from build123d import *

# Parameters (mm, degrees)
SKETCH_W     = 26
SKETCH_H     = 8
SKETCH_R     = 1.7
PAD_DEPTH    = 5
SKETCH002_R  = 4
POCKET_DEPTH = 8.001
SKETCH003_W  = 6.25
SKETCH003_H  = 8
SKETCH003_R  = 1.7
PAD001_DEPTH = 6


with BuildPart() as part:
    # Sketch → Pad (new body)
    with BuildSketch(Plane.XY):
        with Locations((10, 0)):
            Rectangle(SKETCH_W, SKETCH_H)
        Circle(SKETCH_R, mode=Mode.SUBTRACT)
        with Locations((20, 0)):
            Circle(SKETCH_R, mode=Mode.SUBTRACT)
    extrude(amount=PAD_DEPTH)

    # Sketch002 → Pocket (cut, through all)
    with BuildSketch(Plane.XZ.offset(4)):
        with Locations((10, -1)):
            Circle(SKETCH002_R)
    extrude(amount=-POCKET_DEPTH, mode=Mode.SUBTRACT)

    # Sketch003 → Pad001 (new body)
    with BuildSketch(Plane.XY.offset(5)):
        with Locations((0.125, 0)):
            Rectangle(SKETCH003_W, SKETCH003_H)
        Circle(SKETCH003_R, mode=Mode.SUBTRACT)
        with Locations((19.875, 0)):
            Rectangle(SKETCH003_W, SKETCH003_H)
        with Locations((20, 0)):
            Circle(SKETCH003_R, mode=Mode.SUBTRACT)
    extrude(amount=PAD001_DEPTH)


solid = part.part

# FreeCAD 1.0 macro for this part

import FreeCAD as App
import Part
import Sketcher
from FreeCAD import Vector
Q = App.Units.Quantity

doc = App.newDocument("Part")
body = doc.addObject("PartDesign::Body", "Body")

# Sketch on XY plane
sketch1 = body.newObject("Sketcher::SketchObject", "Sketch")
sketch1.AttachmentSupport = (doc.getObject("XY_Plane"), [""])
sketch1.MapMode = "FlatFace"
sketch1.addGeometry([
    Part.LineSegment(Vector(-3, 4, 0), Vector(-3, -4, 0)),  # 0
    Part.LineSegment(Vector(-3, -4, 0), Vector(23, -4, 0)),  # 1
    Part.LineSegment(Vector(23, -4, 0), Vector(23, 4, 0)),  # 2
    Part.LineSegment(Vector(23, 4, 0), Vector(-3, 4, 0)),  # 3
    Part.Circle(Vector(0, 0, 0), Vector(0, 0, 1), 1.7),  # 4
    Part.Circle(Vector(20, 0, 0), Vector(0, 0, 1), 1.7),  # 5
], False)
sketch1.addConstraint([
    Sketcher.Constraint("Coincident", 0, 2, 1, 1),
    Sketcher.Constraint("Coincident", 1, 2, 2, 1),
    Sketcher.Constraint("Coincident", 2, 2, 3, 1),
    Sketcher.Constraint("Coincident", 3, 2, 0, 1),
    Sketcher.Constraint("Vertical", 0),
    Sketcher.Constraint("Horizontal", 1),
    Sketcher.Constraint("Vertical", 2),
    Sketcher.Constraint("Horizontal", 3),
    Sketcher.Constraint("Coincident", 4, 3, -1, 1),
    Sketcher.Constraint("Equal", 4, 5),
    Sketcher.Constraint("PointOnObject", 5, 3, -1),
    Sketcher.Constraint("Diameter", 4, Q("3.4 mm")),
    Sketcher.Constraint("DistanceX", 1, 1, 1, 2, Q("26 mm")),
    Sketcher.Constraint("DistanceY", 0, 2, 0, 1, Q("8 mm")),
    Sketcher.Constraint("DistanceX", -1, 1, 5, 3, Q("20 mm")),
    Sketcher.Constraint("DistanceX", 0, 2, -1, 1, Q("3 mm")),
    Sketcher.Constraint("DistanceY", 0, 2, -1, 1, Q("4 mm")),
])
pad1 = body.newObject("PartDesign::Pad", "Pad")
pad1.Profile = sketch1
pad1.Length = 5

# Sketch on XZ plane
sketch2 = body.newObject("Sketcher::SketchObject", "Sketch001")
sketch2.AttachmentSupport = (doc.getObject("XZ_Plane"), [""])
sketch2.MapMode = "FlatFace"
sketch2.AttachmentOffset = App.Placement(Vector(0, 0, 4), App.Rotation())
sketch2.addGeometry(Part.Circle(Vector(10, -1, 0), Vector(0, 0, 1), 4), False)
sketch2.addConstraint([
    Sketcher.Constraint("Diameter", 0, Q("8 mm")),
    Sketcher.Constraint("DistanceX", -1, 1, 0, 3, Q("10 mm")),
    Sketcher.Constraint("DistanceY", 0, 3, -1, 1, Q("1 mm")),
])
pocket1 = body.newObject("PartDesign::Pocket", "Pocket")
pocket1.Profile = sketch2
pocket1.Type = "ThroughAll"

# Sketch on XY plane
sketch3 = body.newObject("Sketcher::SketchObject", "Sketch002")
sketch3.AttachmentSupport = (doc.getObject("XY_Plane"), [""])
sketch3.MapMode = "FlatFace"
sketch3.AttachmentOffset = App.Placement(Vector(0, 0, 5), App.Rotation())
sketch3.addGeometry([
    Part.LineSegment(Vector(-3, 4, 0), Vector(-3, -4, 0)),  # 0
    Part.LineSegment(Vector(-3, -4, 0), Vector(3.2, -4, 0)),  # 1
    Part.LineSegment(Vector(3.2, -4, 0), Vector(3.2, 4, 0)),  # 2
    Part.LineSegment(Vector(3.2, 4, 0), Vector(-3, 4, 0)),  # 3
    Part.Circle(Vector(0, 0, 0), Vector(0, 0, 1), 1.7),  # 4
    Part.LineSegment(Vector(16.8, 4, 0), Vector(16.8, -4, 0)),  # 5
    Part.LineSegment(Vector(16.8, -4, 0), Vector(23, -4, 0)),  # 6
    Part.LineSegment(Vector(23, -4, 0), Vector(23, 4, 0)),  # 7
    Part.LineSegment(Vector(23, 4, 0), Vector(16.8, 4, 0)),  # 8
    Part.Circle(Vector(20, 0, 0), Vector(0, 0, 1), 1.7),  # 9
], False)
sketch3.addConstraint([
    Sketcher.Constraint("Coincident", 0, 2, 1, 1),
    Sketcher.Constraint("Coincident", 1, 2, 2, 1),
    Sketcher.Constraint("Coincident", 2, 2, 3, 1),
    Sketcher.Constraint("Coincident", 3, 2, 0, 1),
    Sketcher.Constraint("Coincident", 5, 2, 6, 1),
    Sketcher.Constraint("Coincident", 6, 2, 7, 1),
    Sketcher.Constraint("Coincident", 7, 2, 8, 1),
    Sketcher.Constraint("Coincident", 8, 2, 5, 1),
    Sketcher.Constraint("Vertical", 0),
    Sketcher.Constraint("Horizontal", 1),
    Sketcher.Constraint("Vertical", 2),
    Sketcher.Constraint("Horizontal", 3),
    Sketcher.Constraint("Vertical", 5),
    Sketcher.Constraint("Horizontal", 6),
    Sketcher.Constraint("Vertical", 7),
    Sketcher.Constraint("Horizontal", 8),
    Sketcher.Constraint("Coincident", 4, 3, -1, 1),
    Sketcher.Constraint("Equal", 4, 9),
    Sketcher.Constraint("PointOnObject", 9, 3, -1),
    Sketcher.Constraint("Horizontal", 1, 2, 5, 2),
    Sketcher.Constraint("Horizontal", 3, 2, 7, 2),
    Sketcher.Constraint("Equal", 3, 6),
    Sketcher.Constraint("Diameter", 4, Q("3.4 mm")),
    Sketcher.Constraint("DistanceY", 0, 2, 0, 1, Q("8 mm")),
    Sketcher.Constraint("DistanceX", -1, 1, 9, 3, Q("20 mm")),
    Sketcher.Constraint("DistanceX", 0, 2, -1, 1, Q("3 mm")),
    Sketcher.Constraint("DistanceY", 0, 2, -1, 1, Q("4 mm")),
    Sketcher.Constraint("DistanceX", -1, 1, 6, 2, Q("23 mm")),
    Sketcher.Constraint("DistanceX", 1, 1, 1, 2, Q("6.25 mm")),
])
pad2 = body.newObject("PartDesign::Pad", "Pad001")
pad2.Profile = sketch3
pad2.Length = 6

doc.recompute()
